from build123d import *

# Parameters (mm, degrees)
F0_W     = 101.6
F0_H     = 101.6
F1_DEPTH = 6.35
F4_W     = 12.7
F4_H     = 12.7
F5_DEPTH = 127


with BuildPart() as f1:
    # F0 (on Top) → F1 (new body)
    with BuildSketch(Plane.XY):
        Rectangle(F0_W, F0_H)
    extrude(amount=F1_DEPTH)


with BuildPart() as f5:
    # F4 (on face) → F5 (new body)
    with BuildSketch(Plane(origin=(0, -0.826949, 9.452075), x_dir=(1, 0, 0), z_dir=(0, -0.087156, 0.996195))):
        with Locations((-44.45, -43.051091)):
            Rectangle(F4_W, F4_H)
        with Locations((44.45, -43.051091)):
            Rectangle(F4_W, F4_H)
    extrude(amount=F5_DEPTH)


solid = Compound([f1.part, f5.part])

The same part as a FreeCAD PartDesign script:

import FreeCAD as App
import Part
import Sketcher
from FreeCAD import Vector
Q = App.Units.Quantity

doc = App.newDocument("Part")
params = doc.addObject("Spreadsheet::Sheet", "Params")
for row, (alias, value) in enumerate([
    ("sketch1_width", "4 in"),
    ("pad1_length", "0.25 in"),
    ("sketch2_width", "0.5 in"),
    ("pad2_length", "5 in"),
], start=1):
    params.set(f"A{row}", alias)
    params.set(f"B{row}", "=" + value)
    params.setAlias(f"B{row}", alias)

body = doc.addObject("PartDesign::Body", "Body")

# Sketch on XY plane
sketch1 = body.newObject("Sketcher::SketchObject", "Sketch")
sketch1.AttachmentSupport = (doc.getObject("XY_Plane"), [""])
sketch1.MapMode = "FlatFace"
sketch1.addGeometry(Part.LineSegment(Vector(-51, 51, 0), Vector(-51, -51, 0)), False)
sketch1.addGeometry(Part.LineSegment(Vector(-51, -51, 0), Vector(51, -51, 0)), False)
sketch1.addGeometry(Part.LineSegment(Vector(51, -51, 0), Vector(51, 51, 0)), False)
sketch1.addGeometry(Part.LineSegment(Vector(51, 51, 0), Vector(-51, 51, 0)), False)
sketch1.addConstraint(Sketcher.Constraint("Coincident", 0, 2, 1, 1))
sketch1.addConstraint(Sketcher.Constraint("Coincident", 1, 2, 2, 1))
sketch1.addConstraint(Sketcher.Constraint("Coincident", 2, 2, 3, 1))
sketch1.addConstraint(Sketcher.Constraint("Coincident", 3, 2, 0, 1))
sketch1.addConstraint(Sketcher.Constraint("Vertical", 0))
sketch1.addConstraint(Sketcher.Constraint("Horizontal", 1))
sketch1.addConstraint(Sketcher.Constraint("Vertical", 2))
sketch1.addConstraint(Sketcher.Constraint("Horizontal", 3))
sketch1.addConstraint(Sketcher.Constraint("Symmetric", 0, 2, 2, 2, -1, 1))
sketch1.addConstraint(Sketcher.Constraint("Equal", 3, 0))
sketch1.addConstraint(Sketcher.Constraint("DistanceX", 1, 1, 1, 2, Q("4 in")))
sketch1.setExpression("Constraints[10]", "Params.sketch1_width")
pad1 = body.newObject("PartDesign::Pad", "Pad")
pad1.Profile = sketch1
pad1.setExpression("Length", "Params.pad1_length")
body2 = doc.addObject("PartDesign::Body", "Body001")
body2.AllowCompound = True

# Sketch on an angled plane
sketch2 = body2.newObject("Sketcher::SketchObject", "Sketch001")
sketch2.Placement = App.Placement(Vector(0, -0.826949, 9.452075), App.Rotation(Vector(1, 0, 0), Vector(0, 0.996194678, 0.087155972), Vector(0, -0.087155972, 0.996194678), "ZXY"))
sketch2.addGeometry(Part.LineSegment(Vector(-51, -37, 0), Vector(-51, -49, 0)), False)
sketch2.addGeometry(Part.LineSegment(Vector(-51, -49, 0), Vector(-38, -49, 0)), False)
sketch2.addGeometry(Part.LineSegment(Vector(-38, -49, 0), Vector(-38, -37, 0)), False)
sketch2.addGeometry(Part.LineSegment(Vector(-38, -37, 0), Vector(-51, -37, 0)), False)
sketch2.addGeometry(Part.LineSegment(Vector(38, -37, 0), Vector(38, -49, 0)), False)
sketch2.addGeometry(Part.LineSegment(Vector(38, -49, 0), Vector(51, -49, 0)), False)
sketch2.addGeometry(Part.LineSegment(Vector(51, -49, 0), Vector(51, -37, 0)), False)
sketch2.addGeometry(Part.LineSegment(Vector(51, -37, 0), Vector(38, -37, 0)), False)
sketch2.addConstraint(Sketcher.Constraint("Coincident", 0, 2, 1, 1))
sketch2.addConstraint(Sketcher.Constraint("Coincident", 1, 2, 2, 1))
sketch2.addConstraint(Sketcher.Constraint("Coincident", 2, 2, 3, 1))
sketch2.addConstraint(Sketcher.Constraint("Coincident", 3, 2, 0, 1))
sketch2.addConstraint(Sketcher.Constraint("Coincident", 4, 2, 5, 1))
sketch2.addConstraint(Sketcher.Constraint("Coincident", 5, 2, 6, 1))
sketch2.addConstraint(Sketcher.Constraint("Coincident", 6, 2, 7, 1))
sketch2.addConstraint(Sketcher.Constraint("Coincident", 7, 2, 4, 1))
sketch2.addConstraint(Sketcher.Constraint("Vertical", 0))
sketch2.addConstraint(Sketcher.Constraint("Horizontal", 1))
sketch2.addConstraint(Sketcher.Constraint("Vertical", 2))
sketch2.addConstraint(Sketcher.Constraint("Horizontal", 3))
sketch2.addConstraint(Sketcher.Constraint("Vertical", 4))
sketch2.addConstraint(Sketcher.Constraint("Horizontal", 5))
sketch2.addConstraint(Sketcher.Constraint("Vertical", 6))
sketch2.addConstraint(Sketcher.Constraint("Horizontal", 7))
sketch2.addConstraint(Sketcher.Constraint("Symmetric", 1, 2, 4, 2, -2))
sketch2.addConstraint(Sketcher.Constraint("Symmetric", 3, 2, 6, 2, -2))
sketch2.addConstraint(Sketcher.Constraint("Equal", 7, 0))
sketch2.addConstraint(Sketcher.Constraint("DistanceX", 1, 1, 1, 2, Q("0.5 in")))
sketch2.addConstraint(Sketcher.Constraint("DistanceX", 0, 2, -1, 1, Q("2 in")))
sketch2.addConstraint(Sketcher.Constraint("DistanceY", 0, 2, -1, 1, 49.401091))
sketch2.setExpression("Constraints[19]", "Params.sketch2_width")
pad2 = body2.newObject("PartDesign::Pad", "Pad001")
pad2.Profile = sketch2
pad2.setExpression("Length", "Params.pad2_length")

doc.recompute()
